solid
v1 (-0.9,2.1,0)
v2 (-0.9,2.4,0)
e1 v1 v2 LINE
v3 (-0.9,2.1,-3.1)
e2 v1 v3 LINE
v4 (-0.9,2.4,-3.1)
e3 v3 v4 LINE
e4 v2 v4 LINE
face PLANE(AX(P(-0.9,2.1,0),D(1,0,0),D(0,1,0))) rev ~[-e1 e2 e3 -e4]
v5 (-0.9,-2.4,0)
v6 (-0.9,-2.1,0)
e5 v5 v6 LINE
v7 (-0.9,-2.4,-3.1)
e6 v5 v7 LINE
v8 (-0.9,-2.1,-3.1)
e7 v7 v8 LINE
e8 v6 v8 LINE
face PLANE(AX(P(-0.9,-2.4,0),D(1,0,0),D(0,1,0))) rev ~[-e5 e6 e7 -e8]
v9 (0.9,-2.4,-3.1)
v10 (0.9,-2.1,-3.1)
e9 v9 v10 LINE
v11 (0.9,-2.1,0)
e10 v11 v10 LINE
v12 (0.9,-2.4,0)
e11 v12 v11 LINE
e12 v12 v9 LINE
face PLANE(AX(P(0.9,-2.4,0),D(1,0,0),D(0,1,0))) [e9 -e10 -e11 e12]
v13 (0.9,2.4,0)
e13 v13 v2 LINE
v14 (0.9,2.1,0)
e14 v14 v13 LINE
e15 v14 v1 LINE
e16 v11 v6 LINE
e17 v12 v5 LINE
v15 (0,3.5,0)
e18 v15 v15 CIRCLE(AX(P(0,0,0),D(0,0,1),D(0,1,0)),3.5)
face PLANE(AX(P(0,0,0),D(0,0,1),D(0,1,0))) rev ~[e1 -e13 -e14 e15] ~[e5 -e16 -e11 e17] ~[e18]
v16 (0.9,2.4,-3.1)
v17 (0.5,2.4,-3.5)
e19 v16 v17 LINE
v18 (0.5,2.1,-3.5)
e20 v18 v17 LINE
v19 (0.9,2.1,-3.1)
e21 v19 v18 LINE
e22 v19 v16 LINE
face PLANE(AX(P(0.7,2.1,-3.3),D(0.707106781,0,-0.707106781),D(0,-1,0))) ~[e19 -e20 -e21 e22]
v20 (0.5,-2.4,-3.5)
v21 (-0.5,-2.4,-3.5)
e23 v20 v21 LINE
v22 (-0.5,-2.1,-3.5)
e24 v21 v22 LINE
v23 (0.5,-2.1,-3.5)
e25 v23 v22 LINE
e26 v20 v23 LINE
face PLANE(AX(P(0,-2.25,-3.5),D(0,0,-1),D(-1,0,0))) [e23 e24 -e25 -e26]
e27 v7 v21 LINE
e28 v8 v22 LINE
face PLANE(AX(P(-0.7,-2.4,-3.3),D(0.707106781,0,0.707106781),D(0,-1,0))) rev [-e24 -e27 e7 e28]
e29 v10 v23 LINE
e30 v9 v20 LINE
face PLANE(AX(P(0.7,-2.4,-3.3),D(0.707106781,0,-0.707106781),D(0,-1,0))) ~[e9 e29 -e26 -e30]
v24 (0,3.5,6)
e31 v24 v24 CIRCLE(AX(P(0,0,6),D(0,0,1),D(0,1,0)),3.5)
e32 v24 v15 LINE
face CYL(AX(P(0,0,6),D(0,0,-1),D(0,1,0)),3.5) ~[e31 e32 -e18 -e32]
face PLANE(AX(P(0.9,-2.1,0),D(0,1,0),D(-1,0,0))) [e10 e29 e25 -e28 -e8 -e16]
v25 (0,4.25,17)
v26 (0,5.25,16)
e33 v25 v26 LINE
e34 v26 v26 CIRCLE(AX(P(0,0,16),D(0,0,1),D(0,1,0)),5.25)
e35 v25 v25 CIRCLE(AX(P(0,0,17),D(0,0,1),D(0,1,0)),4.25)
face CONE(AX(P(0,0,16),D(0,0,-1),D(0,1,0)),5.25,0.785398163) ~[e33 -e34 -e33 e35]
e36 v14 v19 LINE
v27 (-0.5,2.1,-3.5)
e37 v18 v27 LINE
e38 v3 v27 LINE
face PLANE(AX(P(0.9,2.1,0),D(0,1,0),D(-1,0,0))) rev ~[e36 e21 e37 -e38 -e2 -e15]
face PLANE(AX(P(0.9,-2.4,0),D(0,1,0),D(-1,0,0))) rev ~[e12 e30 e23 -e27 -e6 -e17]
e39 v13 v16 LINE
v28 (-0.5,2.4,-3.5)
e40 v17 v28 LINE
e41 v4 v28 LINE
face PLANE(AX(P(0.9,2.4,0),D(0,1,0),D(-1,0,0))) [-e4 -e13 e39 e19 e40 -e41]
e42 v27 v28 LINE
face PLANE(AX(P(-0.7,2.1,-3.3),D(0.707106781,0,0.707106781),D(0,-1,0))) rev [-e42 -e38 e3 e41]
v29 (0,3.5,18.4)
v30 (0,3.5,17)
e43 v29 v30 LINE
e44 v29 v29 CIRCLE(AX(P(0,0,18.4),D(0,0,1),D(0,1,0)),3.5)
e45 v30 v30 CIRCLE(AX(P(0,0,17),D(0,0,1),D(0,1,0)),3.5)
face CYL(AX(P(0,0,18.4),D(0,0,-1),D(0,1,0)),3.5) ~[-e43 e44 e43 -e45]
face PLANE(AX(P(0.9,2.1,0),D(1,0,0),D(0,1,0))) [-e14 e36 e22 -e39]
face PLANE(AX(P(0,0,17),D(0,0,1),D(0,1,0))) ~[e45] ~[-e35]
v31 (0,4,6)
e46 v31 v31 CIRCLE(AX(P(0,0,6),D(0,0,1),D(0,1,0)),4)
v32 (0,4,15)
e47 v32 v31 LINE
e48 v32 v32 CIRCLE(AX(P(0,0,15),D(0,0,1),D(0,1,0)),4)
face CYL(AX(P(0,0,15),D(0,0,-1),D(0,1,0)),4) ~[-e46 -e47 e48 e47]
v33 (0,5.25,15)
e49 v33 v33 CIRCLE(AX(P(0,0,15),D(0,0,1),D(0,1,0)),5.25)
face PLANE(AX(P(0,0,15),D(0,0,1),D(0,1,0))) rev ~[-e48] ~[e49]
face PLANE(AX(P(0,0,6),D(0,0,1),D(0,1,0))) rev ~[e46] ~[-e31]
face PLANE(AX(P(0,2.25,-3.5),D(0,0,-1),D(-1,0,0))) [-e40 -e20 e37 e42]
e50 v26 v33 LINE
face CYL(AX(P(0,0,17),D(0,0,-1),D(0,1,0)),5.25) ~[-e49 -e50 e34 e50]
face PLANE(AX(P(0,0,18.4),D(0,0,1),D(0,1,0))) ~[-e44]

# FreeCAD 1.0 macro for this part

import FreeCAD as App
import Part
import Sketcher

V = App.Vector
Q = App.Units.Quantity


def edges_at(feature, points):
    """Names of the edges that pass closest to the given points."""
    edges = feature.Shape.Edges
    near = lambda p: min(range(len(edges)), key=lambda i: edges[i].distToShape(Part.Vertex(*p))[0])
    return sorted({f"Edge{near(p) + 1}" for p in points})

doc = App.newDocument("Part")
body = doc.addObject("PartDesign::Body", "Body")

# Sketch on YZ plane
sketch1 = doc.addObject("Sketcher::SketchObject", "Sketch")
body.addObject(sketch1)
sketch1.AttachmentSupport = (doc.YZ_Plane, [""])
sketch1.MapMode = "FlatFace"
sketch1.addGeometry([
    Part.LineSegment(V(3.5, 18.4, 0), V(0, 18.4, 0)),  # 0
    Part.LineSegment(V(0, 18.4, 0), V(0, 0, 0)),  # 1
    Part.LineSegment(V(0, 0, 0), V(3.5, 0, 0)),  # 2
    Part.LineSegment(V(3.5, 0, 0), V(3.5, 6, 0)),  # 3
    Part.LineSegment(V(3.5, 6, 0), V(4, 6, 0)),  # 4
    Part.LineSegment(V(4, 6, 0), V(4, 15, 0)),  # 5
    Part.LineSegment(V(4, 15, 0), V(5.2, 15, 0)),  # 6
    Part.LineSegment(V(5.2, 15, 0), V(5.2, 17, 0)),  # 7
    Part.LineSegment(V(5.2, 17, 0), V(3.5, 17, 0)),  # 8
    Part.LineSegment(V(3.5, 17, 0), V(3.5, 18.4, 0)),  # 9
], False)
sketch1.addConstraint([
    Sketcher.Constraint("Coincident", 0, 2, 1, 1),
    Sketcher.Constraint("Coincident", 1, 2, 2, 1),
    Sketcher.Constraint("Coincident", 2, 2, 3, 1),
    Sketcher.Constraint("Coincident", 3, 2, 4, 1),
    Sketcher.Constraint("Coincident", 4, 2, 5, 1),
    Sketcher.Constraint("Coincident", 5, 2, 6, 1),
    Sketcher.Constraint("Coincident", 6, 2, 7, 1),
    Sketcher.Constraint("Coincident", 7, 2, 8, 1),
    Sketcher.Constraint("Coincident", 8, 2, 9, 1),
    Sketcher.Constraint("Coincident", 9, 2, 0, 1),
    Sketcher.Constraint("Horizontal", 0),
    Sketcher.Constraint("Vertical", 1),
    Sketcher.Constraint("Horizontal", 2),
    Sketcher.Constraint("Vertical", 3),
    Sketcher.Constraint("Horizontal", 4),
    Sketcher.Constraint("Vertical", 5),
    Sketcher.Constraint("Horizontal", 6),
    Sketcher.Constraint("Vertical", 7),
    Sketcher.Constraint("Horizontal", 8),
    Sketcher.Constraint("Vertical", 9),
    Sketcher.Constraint("Coincident", 1, 2, -1, 1),
    Sketcher.Constraint("Vertical", 3, 2, 8, 2),
    Sketcher.Constraint("DistanceY", 3, 1, 3, 2, Q("6 mm")),
    Sketcher.Constraint("DistanceY", 5, 1, 5, 2, Q("9 mm")),
    Sketcher.Constraint("DistanceY", 7, 1, 7, 2, Q("2 mm")),
    Sketcher.Constraint("DistanceX", 0, 2, 0, 1, Q("3.5 mm")),
    Sketcher.Constraint("DistanceX", 4, 1, 4, 2, Q("0.5 mm")),
    Sketcher.Constraint("DistanceY", 1, 2, 1, 1, Q("18.4 mm")),
    Sketcher.Constraint("DistanceX", 6, 1, 6, 2, Q("1.25 mm")),
])
revolution = doc.addObject("PartDesign::Revolution", "Revolution")
body.addObject(revolution)
revolution.Profile = sketch1
revolution.ReferenceAxis = (sketch1, ["V_Axis"])
revolution.Angle = 360

# Sketch on XY plane
sketch2 = doc.addObject("Sketcher::SketchObject", "Sketch001")
body.addObject(sketch2)
sketch2.AttachmentSupport = (doc.XY_Plane, [""])
sketch2.MapMode = "FlatFace"
sketch2.addGeometry([
    Part.LineSegment(V(0.9, 2.4, 0), V(0.9, 2.1, 0)),  # 0
    Part.LineSegment(V(0.9, 2.1, 0), V(-0.9, 2.1, 0)),  # 1
    Part.LineSegment(V(-0.9, 2.1, 0), V(-0.9, 2.4, 0)),  # 2
    Part.LineSegment(V(-0.9, 2.4, 0), V(0.9, 2.4, 0)),  # 3
    Part.LineSegment(V(0.9, -2.1, 0), V(0.9, -2.4, 0)),  # 4
    Part.LineSegment(V(0.9, -2.4, 0), V(-0.9, -2.4, 0)),  # 5
    Part.LineSegment(V(-0.9, -2.4, 0), V(-0.9, -2.1, 0)),  # 6
    Part.LineSegment(V(-0.9, -2.1, 0), V(0.9, -2.1, 0)),  # 7
], False)
sketch2.addConstraint([
    Sketcher.Constraint("Coincident", 0, 2, 1, 1),
    Sketcher.Constraint("Coincident", 1, 2, 2, 1),
    Sketcher.Constraint("Coincident", 2, 2, 3, 1),
    Sketcher.Constraint("Coincident", 3, 2, 0, 1),
    Sketcher.Constraint("Coincident", 4, 2, 5, 1),
    Sketcher.Constraint("Coincident", 5, 2, 6, 1),
    Sketcher.Constraint("Coincident", 6, 2, 7, 1),
    Sketcher.Constraint("Coincident", 7, 2, 4, 1),
    Sketcher.Constraint("Vertical", 0),
    Sketcher.Constraint("Horizontal", 1),
    Sketcher.Constraint("Vertical", 2),
    Sketcher.Constraint("Horizontal", 3),
    Sketcher.Constraint("Vertical", 4),
    Sketcher.Constraint("Horizontal", 5),
    Sketcher.Constraint("Vertical", 6),
    Sketcher.Constraint("Horizontal", 7),
    Sketcher.Constraint("Symmetric", 2, 2, 4, 2, -1, 1),
    Sketcher.Constraint("Symmetric", 0, 2, 6, 2, -1, 1),
    Sketcher.Constraint("Vertical", 3, 2, 4, 2),
    Sketcher.Constraint("DistanceX", 1, 2, 1, 1, Q("1.8 mm")),
    Sketcher.Constraint("DistanceY", 0, 2, 0, 1, Q("0.3 mm")),
    Sketcher.Constraint("DistanceY", -1, 1, 0, 2, Q("2.1 mm")),
])
pad1 = doc.addObject("PartDesign::Pad", "Pad")
body.addObject(pad1)
pad1.Profile = sketch2
pad1.Length = 3.5
pad1.Reversed = True
doc.recompute()

chamfer = doc.addObject("PartDesign::Chamfer", "Chamfer")
body.addObject(chamfer)
chamfer.Base = (pad1, edges_at(pad1, [(0, -5.25, 17)]))
chamfer.Size = 1
doc.recompute()

chamfer2 = doc.addObject("PartDesign::Chamfer", "Chamfer001")
body.addObject(chamfer2)
chamfer2.Base = (chamfer, edges_at(chamfer, [
    (-0.9, 2.25, -3.5),
    (0.9, 2.25, -3.5),
    (-0.9, -2.25, -3.5),
    (0.9, -2.25, -3.5),
]))
chamfer2.Size = 0.4

doc.recompute()
